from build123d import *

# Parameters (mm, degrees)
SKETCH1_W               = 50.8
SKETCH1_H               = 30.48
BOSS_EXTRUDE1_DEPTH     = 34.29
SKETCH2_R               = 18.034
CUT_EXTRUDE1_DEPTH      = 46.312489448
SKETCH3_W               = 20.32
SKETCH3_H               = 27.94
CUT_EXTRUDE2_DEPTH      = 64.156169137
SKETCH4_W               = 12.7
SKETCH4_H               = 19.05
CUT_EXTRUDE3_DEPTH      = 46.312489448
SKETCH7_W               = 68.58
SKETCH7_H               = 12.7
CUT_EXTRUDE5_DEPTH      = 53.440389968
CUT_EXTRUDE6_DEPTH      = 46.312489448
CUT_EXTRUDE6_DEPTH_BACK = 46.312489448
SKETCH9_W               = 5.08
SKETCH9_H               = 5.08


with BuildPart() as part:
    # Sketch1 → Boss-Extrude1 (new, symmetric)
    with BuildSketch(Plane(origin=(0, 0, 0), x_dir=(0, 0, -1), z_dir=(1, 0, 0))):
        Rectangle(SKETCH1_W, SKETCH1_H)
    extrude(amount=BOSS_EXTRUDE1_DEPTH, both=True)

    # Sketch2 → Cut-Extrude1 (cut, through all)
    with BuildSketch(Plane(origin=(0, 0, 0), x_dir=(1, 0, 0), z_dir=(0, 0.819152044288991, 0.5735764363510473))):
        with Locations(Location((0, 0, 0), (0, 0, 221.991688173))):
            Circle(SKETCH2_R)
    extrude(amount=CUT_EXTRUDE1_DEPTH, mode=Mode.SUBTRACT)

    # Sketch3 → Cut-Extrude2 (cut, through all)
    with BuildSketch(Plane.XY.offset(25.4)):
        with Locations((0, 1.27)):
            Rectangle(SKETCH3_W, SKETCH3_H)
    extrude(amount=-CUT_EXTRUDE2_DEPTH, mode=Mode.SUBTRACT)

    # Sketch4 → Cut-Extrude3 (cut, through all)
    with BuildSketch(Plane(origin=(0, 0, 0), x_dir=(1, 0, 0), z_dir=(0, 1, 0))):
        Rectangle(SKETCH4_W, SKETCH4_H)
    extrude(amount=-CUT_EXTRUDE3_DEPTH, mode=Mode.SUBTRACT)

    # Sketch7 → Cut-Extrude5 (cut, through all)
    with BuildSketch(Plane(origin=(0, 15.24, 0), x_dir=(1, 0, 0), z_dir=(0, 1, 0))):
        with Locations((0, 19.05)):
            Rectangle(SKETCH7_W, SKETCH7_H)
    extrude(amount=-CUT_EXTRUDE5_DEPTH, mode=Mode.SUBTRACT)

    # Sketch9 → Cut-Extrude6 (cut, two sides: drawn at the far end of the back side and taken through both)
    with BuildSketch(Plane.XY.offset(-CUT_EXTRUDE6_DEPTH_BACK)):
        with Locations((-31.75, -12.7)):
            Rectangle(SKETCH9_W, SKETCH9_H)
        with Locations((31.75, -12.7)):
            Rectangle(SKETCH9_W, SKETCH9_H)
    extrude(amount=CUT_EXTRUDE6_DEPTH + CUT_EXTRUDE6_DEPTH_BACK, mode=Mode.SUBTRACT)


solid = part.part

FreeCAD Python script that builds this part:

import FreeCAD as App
import Part
import Sketcher
Q = App.Units.Quantity

doc = App.newDocument("Part")
body = doc.addObject("PartDesign::Body", "Body")

# Sketch on YZ plane
sketch1 = body.newObject("Sketcher::SketchObject", "Sketch")
sketch1.AttachmentSupport = (doc.getObject("YZ_Plane"), [""])
sketch1.MapMode = "FlatFace"
sketch1.addGeometry(Part.LineSegment(App.Vector(15, 25, 0), App.Vector(-15, 25, 0)), False)
sketch1.addGeometry(Part.LineSegment(App.Vector(-15, 25, 0), App.Vector(-15, -25, 0)), False)
sketch1.addGeometry(Part.LineSegment(App.Vector(-15, -25, 0), App.Vector(15, -25, 0)), False)
sketch1.addGeometry(Part.LineSegment(App.Vector(15, -25, 0), App.Vector(15, 25, 0)), False)
sketch1.addConstraint(Sketcher.Constraint("Coincident", 0, 2, 1, 1))
sketch1.addConstraint(Sketcher.Constraint("Coincident", 1, 2, 2, 1))
sketch1.addConstraint(Sketcher.Constraint("Coincident", 2, 2, 3, 1))
sketch1.addConstraint(Sketcher.Constraint("Coincident", 3, 2, 0, 1))
sketch1.addConstraint(Sketcher.Constraint("Horizontal", 0))
sketch1.addConstraint(Sketcher.Constraint("Vertical", 1))
sketch1.addConstraint(Sketcher.Constraint("Horizontal", 2))
sketch1.addConstraint(Sketcher.Constraint("Vertical", 3))
sketch1.addConstraint(Sketcher.Constraint("Symmetric", 0, 2, 2, 2, -1, 1))
sketch1.addConstraint(Sketcher.Constraint("DistanceY", 1, 2, 1, 1, Q("2 in")))
sketch1.addConstraint(Sketcher.Constraint("DistanceX", 0, 2, 0, 1, Q("1.2 in")))
pad1 = body.newObject("PartDesign::Pad", "Pad")
pad1.Profile = sketch1
pad1.Length = Q("2.7 in")
pad1.Midplane = True

# Sketch on an angled plane
sketch2 = body.newObject("Sketcher::SketchObject", "Sketch001")
sketch2.Placement = App.Placement(App.Vector(0, 0, 0), App.Rotation(App.Vector(1, 0, 0), App.Vector(0, 0.573576436, -0.819152044), App.Vector(0, 0.819152044, 0.573576436), "ZXY"))
sketch2.addGeometry(Part.Circle(App.Vector(0, 0, 0), App.Vector(0, 0, 1), 18), False)
sketch2.addConstraint(Sketcher.Constraint("Coincident", 0, 3, -1, 1))
sketch2.addConstraint(Sketcher.Constraint("Diameter", 0, Q("1.42 in")))
pocket1 = body.newObject("PartDesign::Pocket", "Pocket")
pocket1.Profile = sketch2
pocket1.Type = "ThroughAll"
pocket1.Reversed = True

# Sketch on XY plane
sketch3 = body.newObject("Sketcher::SketchObject", "Sketch002")
sketch3.AttachmentSupport = (doc.getObject("XY_Plane"), [""])
sketch3.MapMode = "FlatFace"
sketch3.AttachmentOffset = App.Placement(App.Vector(0, 0, 1 * 25.4), App.Rotation())
sketch3.addGeometry(Part.LineSegment(App.Vector(-10, 15, 0), App.Vector(-10, -13, 0)), False)
sketch3.addGeometry(Part.LineSegment(App.Vector(-10, -13, 0), App.Vector(10, -13, 0)), False)
sketch3.addGeometry(Part.LineSegment(App.Vector(10, -13, 0), App.Vector(10, 15, 0)), False)
sketch3.addGeometry(Part.LineSegment(App.Vector(10, 15, 0), App.Vector(-10, 15, 0)), False)
sketch3.addConstraint(Sketcher.Constraint("Coincident", 0, 2, 1, 1))
sketch3.addConstraint(Sketcher.Constraint("Coincident", 1, 2, 2, 1))
sketch3.addConstraint(Sketcher.Constraint("Coincident", 2, 2, 3, 1))
sketch3.addConstraint(Sketcher.Constraint("Coincident", 3, 2, 0, 1))
sketch3.addConstraint(Sketcher.Constraint("Vertical", 0))
sketch3.addConstraint(Sketcher.Constraint("Horizontal", 1))
sketch3.addConstraint(Sketcher.Constraint("Vertical", 2))
sketch3.addConstraint(Sketcher.Constraint("Horizontal", 3))
sketch3.addConstraint(Sketcher.Constraint("DistanceX", 1, 1, 1, 2, Q("0.8 in")))
sketch3.addConstraint(Sketcher.Constraint("DistanceY", 0, 2, 0, 1, Q("1.1 in")))
sketch3.addConstraint(Sketcher.Constraint("DistanceX", 0, 2, -1, 1, Q("0.4 in")))
sketch3.addConstraint(Sketcher.Constraint("DistanceY", 0, 2, -1, 1, Q("0.5 in")))
pocket2 = body.newObject("PartDesign::Pocket", "Pocket001")
pocket2.Profile = sketch3
pocket2.Type = "ThroughAll"

# Sketch on XZ plane
sketch4 = body.newObject("Sketcher::SketchObject", "Sketch003")
sketch4.AttachmentSupport = (doc.getObject("XZ_Plane"), [""])
sketch4.MapMode = "FlatFace"
sketch4.addGeometry(Part.LineSegment(App.Vector(-6, -10, 0), App.Vector(-6, 10, 0)), False)
sketch4.addGeometry(Part.LineSegment(App.Vector(-6, 10, 0), App.Vector(6, 10, 0)), False)
sketch4.addGeometry(Part.LineSegment(App.Vector(6, 10, 0), App.Vector(6, -10, 0)), False)
sketch4.addGeometry(Part.LineSegment(App.Vector(6, -10, 0), App.Vector(-6, -10, 0)), False)
sketch4.addConstraint(Sketcher.Constraint("Coincident", 0, 2, 1, 1))
sketch4.addConstraint(Sketcher.Constraint("Coincident", 1, 2, 2, 1))
sketch4.addConstraint(Sketcher.Constraint("Coincident", 2, 2, 3, 1))
sketch4.addConstraint(Sketcher.Constraint("Coincident", 3, 2, 0, 1))
sketch4.addConstraint(Sketcher.Constraint("Vertical", 0))
sketch4.addConstraint(Sketcher.Constraint("Horizontal", 1))
sketch4.addConstraint(Sketcher.Constraint("Vertical", 2))
sketch4.addConstraint(Sketcher.Constraint("Horizontal", 3))
sketch4.addConstraint(Sketcher.Constraint("Symmetric", 0, 2, 2, 2, -1, 1))
sketch4.addConstraint(Sketcher.Constraint("DistanceX", 1, 1, 1, 2, Q("0.5 in")))
sketch4.addConstraint(Sketcher.Constraint("DistanceY", 0, 1, 0, 2, Q("0.75 in")))
pocket3 = body.newObject("PartDesign::Pocket", "Pocket002")
pocket3.Profile = sketch4
pocket3.Type = "ThroughAll"
pocket3.Reversed = True

# Sketch on XZ plane
sketch5 = body.newObject("Sketcher::SketchObject", "Sketch004")
sketch5.AttachmentSupport = (doc.getObject("XZ_Plane"), [""])
sketch5.MapMode = "FlatFace"
sketch5.AttachmentOffset = App.Placement(App.Vector(0, 0, -0.6 * 25.4), App.Rotation())
sketch5.addGeometry(Part.LineSegment(App.Vector(-34, -25, 0), App.Vector(-34, -13, 0)), False)
sketch5.addGeometry(Part.LineSegment(App.Vector(-34, -13, 0), App.Vector(34, -13, 0)), False)
sketch5.addGeometry(Part.LineSegment(App.Vector(34, -13, 0), App.Vector(34, -25, 0)), False)
sketch5.addGeometry(Part.LineSegment(App.Vector(34, -25, 0), App.Vector(-34, -25, 0)), False)
sketch5.addConstraint(Sketcher.Constraint("Coincident", 0, 2, 1, 1))
sketch5.addConstraint(Sketcher.Constraint("Coincident", 1, 2, 2, 1))
sketch5.addConstraint(Sketcher.Constraint("Coincident", 2, 2, 3, 1))
sketch5.addConstraint(Sketcher.Constraint("Coincident", 3, 2, 0, 1))
sketch5.addConstraint(Sketcher.Constraint("Vertical", 0))
sketch5.addConstraint(Sketcher.Constraint("Horizontal", 1))
sketch5.addConstraint(Sketcher.Constraint("Vertical", 2))
sketch5.addConstraint(Sketcher.Constraint("Horizontal", 3))
sketch5.addConstraint(Sketcher.Constraint("DistanceX", 1, 1, 1, 2, Q("2.7 in")))
sketch5.addConstraint(Sketcher.Constraint("DistanceY", 0, 1, 0, 2, Q("0.5 in")))
sketch5.addConstraint(Sketcher.Constraint("DistanceY", 2, 2, -1, 1, Q("1 in")))
sketch5.addConstraint(Sketcher.Constraint("DistanceX", 0, 2, -1, 1, Q("1.35 in")))
pocket4 = body.newObject("PartDesign::Pocket", "Pocket003")
pocket4.Profile = sketch5
pocket4.Type = "ThroughAll"
pocket4.Reversed = True

# Sketch on XY plane
sketch6 = body.newObject("Sketcher::SketchObject", "Sketch005")
sketch6.AttachmentSupport = (doc.getObject("XY_Plane"), [""])
sketch6.MapMode = "FlatFace"
sketch6.addGeometry(Part.LineSegment(App.Vector(-34, -10, 0), App.Vector(-34, -15, 0)), False)
sketch6.addGeometry(Part.LineSegment(App.Vector(-34, -15, 0), App.Vector(-29, -15, 0)), False)
sketch6.addGeometry(Part.LineSegment(App.Vector(-29, -15, 0), App.Vector(-29, -10, 0)), False)
sketch6.addGeometry(Part.LineSegment(App.Vector(-29, -10, 0), App.Vector(-34, -10, 0)), False)
sketch6.addGeometry(Part.LineSegment(App.Vector(29, -10, 0), App.Vector(29, -15, 0)), False)
sketch6.addGeometry(Part.LineSegment(App.Vector(29, -15, 0), App.Vector(34, -15, 0)), False)
sketch6.addGeometry(Part.LineSegment(App.Vector(34, -15, 0), App.Vector(34, -10, 0)), False)
sketch6.addGeometry(Part.LineSegment(App.Vector(34, -10, 0), App.Vector(29, -10, 0)), False)
sketch6.addConstraint(Sketcher.Constraint("Coincident", 0, 2, 1, 1))
sketch6.addConstraint(Sketcher.Constraint("Coincident", 1, 2, 2, 1))
sketch6.addConstraint(Sketcher.Constraint("Coincident", 2, 2, 3, 1))
sketch6.addConstraint(Sketcher.Constraint("Coincident", 3, 2, 0, 1))
sketch6.addConstraint(Sketcher.Constraint("Coincident", 4, 2, 5, 1))
sketch6.addConstraint(Sketcher.Constraint("Coincident", 5, 2, 6, 1))
sketch6.addConstraint(Sketcher.Constraint("Coincident", 6, 2, 7, 1))
sketch6.addConstraint(Sketcher.Constraint("Coincident", 7, 2, 4, 1))
sketch6.addConstraint(Sketcher.Constraint("Vertical", 0))
sketch6.addConstraint(Sketcher.Constraint("Horizontal", 1))
sketch6.addConstraint(Sketcher.Constraint("Vertical", 2))
sketch6.addConstraint(Sketcher.Constraint("Horizontal", 3))
sketch6.addConstraint(Sketcher.Constraint("Vertical", 4))
sketch6.addConstraint(Sketcher.Constraint("Horizontal", 5))
sketch6.addConstraint(Sketcher.Constraint("Vertical", 6))
sketch6.addConstraint(Sketcher.Constraint("Horizontal", 7))
sketch6.addConstraint(Sketcher.Constraint("Symmetric", 1, 2, 4, 2, -2))
sketch6.addConstraint(Sketcher.Constraint("Symmetric", 3, 2, 6, 2, -2))
sketch6.addConstraint(Sketcher.Constraint("Equal", 7, 0))
sketch6.addConstraint(Sketcher.Constraint("DistanceX", 1, 1, 1, 2, Q("0.2 in")))
sketch6.addConstraint(Sketcher.Constraint("DistanceY", 0, 2, -1, 1, Q("0.6 in")))
sketch6.addConstraint(Sketcher.Constraint("DistanceX", 1, 2, 4, 2, Q("2.3 in")))
pocket5 = body.newObject("PartDesign::Pocket", "Pocket004")
pocket5.Profile = sketch6
pocket5.Type = "ThroughAll"
pocket5.Midplane = True

doc.recompute()
